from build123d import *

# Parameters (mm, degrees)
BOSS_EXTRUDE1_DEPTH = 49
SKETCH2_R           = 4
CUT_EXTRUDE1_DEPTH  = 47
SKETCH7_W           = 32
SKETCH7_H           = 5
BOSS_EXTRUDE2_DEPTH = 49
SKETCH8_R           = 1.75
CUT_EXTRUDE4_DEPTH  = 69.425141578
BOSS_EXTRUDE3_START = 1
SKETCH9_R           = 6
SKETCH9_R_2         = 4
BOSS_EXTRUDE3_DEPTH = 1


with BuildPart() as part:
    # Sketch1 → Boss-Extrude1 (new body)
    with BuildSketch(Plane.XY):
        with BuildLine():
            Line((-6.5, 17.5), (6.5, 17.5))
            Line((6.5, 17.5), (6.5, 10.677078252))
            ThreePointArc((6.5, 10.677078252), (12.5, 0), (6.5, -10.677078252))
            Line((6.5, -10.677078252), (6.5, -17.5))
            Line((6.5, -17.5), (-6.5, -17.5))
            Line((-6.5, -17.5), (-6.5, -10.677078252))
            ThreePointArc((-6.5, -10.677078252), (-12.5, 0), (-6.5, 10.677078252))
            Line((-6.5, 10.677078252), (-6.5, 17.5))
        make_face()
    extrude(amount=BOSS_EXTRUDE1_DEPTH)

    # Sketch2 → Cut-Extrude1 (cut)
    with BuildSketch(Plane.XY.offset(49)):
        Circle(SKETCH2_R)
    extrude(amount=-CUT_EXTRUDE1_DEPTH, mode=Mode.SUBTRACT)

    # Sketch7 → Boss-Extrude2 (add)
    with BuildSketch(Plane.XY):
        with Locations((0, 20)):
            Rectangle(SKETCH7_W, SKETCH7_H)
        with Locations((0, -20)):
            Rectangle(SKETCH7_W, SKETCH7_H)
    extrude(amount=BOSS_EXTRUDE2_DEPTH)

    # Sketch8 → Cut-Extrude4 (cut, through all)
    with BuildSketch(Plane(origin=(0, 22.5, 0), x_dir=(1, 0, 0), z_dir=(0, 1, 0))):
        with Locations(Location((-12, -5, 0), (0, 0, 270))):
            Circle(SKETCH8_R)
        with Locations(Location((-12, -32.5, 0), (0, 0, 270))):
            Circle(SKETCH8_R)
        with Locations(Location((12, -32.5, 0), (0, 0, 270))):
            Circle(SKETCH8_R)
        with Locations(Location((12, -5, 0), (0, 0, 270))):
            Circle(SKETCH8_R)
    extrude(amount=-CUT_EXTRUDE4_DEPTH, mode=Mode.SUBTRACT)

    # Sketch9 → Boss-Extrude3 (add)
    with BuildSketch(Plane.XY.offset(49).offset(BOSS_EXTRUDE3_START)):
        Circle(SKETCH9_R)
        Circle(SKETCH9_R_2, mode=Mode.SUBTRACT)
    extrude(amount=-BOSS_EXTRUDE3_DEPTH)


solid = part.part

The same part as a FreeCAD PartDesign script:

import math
import FreeCAD as App
import Part
import Sketcher
from FreeCAD import Vector

doc = App.newDocument("Part")
body = doc.addObject("PartDesign::Body", "Body")

# Sketch on XY plane
sketch1 = body.newObject("Sketcher::SketchObject", "Sketch")
sketch1.AttachmentSupport = (doc.getObject("XY_Plane"), [""])
sketch1.MapMode = "FlatFace"
sketch1.addGeometry([
    Part.LineSegment(Vector(6, 18, 0), Vector(-6, 18, 0)),  # 0
    Part.LineSegment(Vector(-6, 18, 0), Vector(-6, 11, 0)),  # 1
    Part.ArcOfCircle(Part.Circle(Vector(0, 0, 0), Vector(0, 0, 1), 12), math.radians(121), math.radians(239)),  # 2
    Part.LineSegment(Vector(-6, -11, 0), Vector(-6, -18, 0)),  # 3
    Part.LineSegment(Vector(-6, -18, 0), Vector(6, -18, 0)),  # 4
    Part.LineSegment(Vector(6, -18, 0), Vector(6, -11, 0)),  # 5
    Part.ArcOfCircle(Part.Circle(Vector(0, 0, 0), Vector(0, 0, 1), 12), math.radians(-59), math.radians(59)),  # 6
    Part.LineSegment(Vector(6, 11, 0), Vector(6, 18, 0)),  # 7
], False)
sketch1.addConstraint([
    Sketcher.Constraint("Coincident", 0, 2, 1, 1),
    Sketcher.Constraint("Coincident", 1, 2, 2, 1),
    Sketcher.Constraint("Coincident", 2, 2, 3, 1),
    Sketcher.Constraint("Coincident", 3, 2, 4, 1),
    Sketcher.Constraint("Coincident", 4, 2, 5, 1),
    Sketcher.Constraint("Coincident", 5, 2, 6, 1),
    Sketcher.Constraint("Coincident", 6, 2, 7, 1),
    Sketcher.Constraint("Coincident", 7, 2, 0, 1),
    Sketcher.Constraint("Horizontal", 0),
    Sketcher.Constraint("Vertical", 1),
    Sketcher.Constraint("Vertical", 3),
    Sketcher.Constraint("Horizontal", 4),
    Sketcher.Constraint("Vertical", 5),
    Sketcher.Constraint("Vertical", 7),
    Sketcher.Constraint("Coincident", 2, 3, -1, 1),
    Sketcher.Constraint("Coincident", 6, 3, -1, 1),
    Sketcher.Constraint("Equal", 2, 6),
    Sketcher.Constraint("Symmetric", 0, 2, 4, 2, -1, 1),
    Sketcher.Constraint("Horizontal", 2, 2, 5, 2),
    Sketcher.Constraint("Horizontal", 1, 2, 6, 2),
    Sketcher.Constraint("Radius", 2, 12.5),
    Sketcher.Constraint("DistanceX", 0, 2, 0, 1, 13.0),
    Sketcher.Constraint("DistanceY", 3, 2, 0, 2, 35.0),
])
pad1 = body.newObject("PartDesign::Pad", "Pad")
pad1.Profile = sketch1
pad1.Length = 49

# Sketch on XY plane
sketch2 = body.newObject("Sketcher::SketchObject", "Sketch001")
sketch2.AttachmentSupport = (doc.getObject("XY_Plane"), [""])
sketch2.MapMode = "FlatFace"
sketch2.AttachmentOffset = App.Placement(Vector(0, 0, 49), App.Rotation())
sketch2.addGeometry(Part.Circle(Vector(0, 0, 0), Vector(0, 0, 1), 4), False)
sketch2.addConstraint([
    Sketcher.Constraint("Coincident", 0, 3, -1, 1),
    Sketcher.Constraint("Diameter", 0, 8.0),
])
pocket1 = body.newObject("PartDesign::Pocket", "Pocket")
pocket1.Profile = sketch2
pocket1.Length = 47

# Sketch on XY plane
sketch3 = body.newObject("Sketcher::SketchObject", "Sketch002")
sketch3.AttachmentSupport = (doc.getObject("XY_Plane"), [""])
sketch3.MapMode = "FlatFace"
sketch3.addGeometry([
    Part.LineSegment(Vector(-16, 22, 0), Vector(-16, 18, 0)),  # 0
    Part.LineSegment(Vector(-16, 18, 0), Vector(16, 18, 0)),  # 1
    Part.LineSegment(Vector(16, 18, 0), Vector(16, 22, 0)),  # 2
    Part.LineSegment(Vector(16, 22, 0), Vector(-16, 22, 0)),  # 3
    Part.LineSegment(Vector(-16, -18, 0), Vector(-16, -22, 0)),  # 4
    Part.LineSegment(Vector(-16, -22, 0), Vector(16, -22, 0)),  # 5
    Part.LineSegment(Vector(16, -22, 0), Vector(16, -18, 0)),  # 6
    Part.LineSegment(Vector(16, -18, 0), Vector(-16, -18, 0)),  # 7
], False)
sketch3.addConstraint([
    Sketcher.Constraint("Coincident", 0, 2, 1, 1),
    Sketcher.Constraint("Coincident", 1, 2, 2, 1),
    Sketcher.Constraint("Coincident", 2, 2, 3, 1),
    Sketcher.Constraint("Coincident", 3, 2, 0, 1),
    Sketcher.Constraint("Coincident", 4, 2, 5, 1),
    Sketcher.Constraint("Coincident", 5, 2, 6, 1),
    Sketcher.Constraint("Coincident", 6, 2, 7, 1),
    Sketcher.Constraint("Coincident", 7, 2, 4, 1),
    Sketcher.Constraint("Vertical", 0),
    Sketcher.Constraint("Horizontal", 1),
    Sketcher.Constraint("Vertical", 2),
    Sketcher.Constraint("Horizontal", 3),
    Sketcher.Constraint("Vertical", 4),
    Sketcher.Constraint("Horizontal", 5),
    Sketcher.Constraint("Vertical", 6),
    Sketcher.Constraint("Horizontal", 7),
    Sketcher.Constraint("Symmetric", 2, 2, 4, 2, -1, 1),
    Sketcher.Constraint("Symmetric", 0, 2, 6, 2, -1, 1),
    Sketcher.Constraint("Vertical", 3, 2, 4, 2),
    Sketcher.Constraint("DistanceX", 1, 1, 1, 2, 32.0),
    Sketcher.Constraint("DistanceY", 0, 2, 0, 1, 5.0),
    Sketcher.Constraint("DistanceY", 4, 2, 0, 2, 40.0),
])
pad2 = body.newObject("PartDesign::Pad", "Pad001")
pad2.Profile = sketch3
pad2.Length = 49

# Sketch on XZ plane
sketch4 = body.newObject("Sketcher::SketchObject", "Sketch003")
sketch4.AttachmentSupport = (doc.getObject("XZ_Plane"), [""])
sketch4.MapMode = "FlatFace"
sketch4.AttachmentOffset = App.Placement(Vector(0, 0, -22.5), App.Rotation())
sketch4.addGeometry([
    Part.Circle(Vector(-12, 5, 0), Vector(0, 0, 1), 1.8),
    Part.Circle(Vector(-12, 32.5, 0), Vector(0, 0, 1), 1.8),
    Part.Circle(Vector(12, 32.5, 0), Vector(0, 0, 1), 1.8),
    Part.Circle(Vector(12, 5, 0), Vector(0, 0, 1), 1.8),
], False)
sketch4.addConstraint([
    Sketcher.Constraint("Equal", 0, 1),
    Sketcher.Constraint("Equal", 1, 2),
    Sketcher.Constraint("Equal", 2, 3),
    Sketcher.Constraint("Symmetric", 1, 3, 2, 3, -2),
    Sketcher.Constraint("Symmetric", 0, 3, 3, 3, -2),
    Sketcher.Constraint("Vertical", 0, 3, 1, 3),
    Sketcher.Constraint("Diameter", 0, 3.5),
    Sketcher.Constraint("DistanceX", 0, 3, -1, 1, 12.0),
    Sketcher.Constraint("DistanceY", -1, 1, 0, 3, 5.0),
    Sketcher.Constraint("DistanceY", -1, 1, 1, 3, 32.5),
])
pocket2 = body.newObject("PartDesign::Pocket", "Pocket001")
pocket2.Profile = sketch4
pocket2.Type = "ThroughAll"
pocket2.Reversed = True

# Sketch on XY plane
sketch5 = body.newObject("Sketcher::SketchObject", "Sketch004")
sketch5.AttachmentSupport = (doc.getObject("XY_Plane"), [""])
sketch5.MapMode = "FlatFace"
sketch5.AttachmentOffset = App.Placement(Vector(0, 0, 50), App.Rotation())
sketch5.addGeometry([
    Part.Circle(Vector(0, 0, 0), Vector(0, 0, 1), 6),
    Part.Circle(Vector(0, 0, 0), Vector(0, 0, 1), 4),
], False)
sketch5.addConstraint([
    Sketcher.Constraint("Coincident", 0, 3, -1, 1),
    Sketcher.Constraint("Coincident", 1, 3, -1, 1),
    Sketcher.Constraint("Diameter", 0, 12.0),
    Sketcher.Constraint("Diameter", 1, 8.0),
])
pad3 = body.newObject("PartDesign::Pad", "Pad002")
pad3.Profile = sketch5
pad3.Length = 1
pad3.Reversed = True

doc.recompute()
